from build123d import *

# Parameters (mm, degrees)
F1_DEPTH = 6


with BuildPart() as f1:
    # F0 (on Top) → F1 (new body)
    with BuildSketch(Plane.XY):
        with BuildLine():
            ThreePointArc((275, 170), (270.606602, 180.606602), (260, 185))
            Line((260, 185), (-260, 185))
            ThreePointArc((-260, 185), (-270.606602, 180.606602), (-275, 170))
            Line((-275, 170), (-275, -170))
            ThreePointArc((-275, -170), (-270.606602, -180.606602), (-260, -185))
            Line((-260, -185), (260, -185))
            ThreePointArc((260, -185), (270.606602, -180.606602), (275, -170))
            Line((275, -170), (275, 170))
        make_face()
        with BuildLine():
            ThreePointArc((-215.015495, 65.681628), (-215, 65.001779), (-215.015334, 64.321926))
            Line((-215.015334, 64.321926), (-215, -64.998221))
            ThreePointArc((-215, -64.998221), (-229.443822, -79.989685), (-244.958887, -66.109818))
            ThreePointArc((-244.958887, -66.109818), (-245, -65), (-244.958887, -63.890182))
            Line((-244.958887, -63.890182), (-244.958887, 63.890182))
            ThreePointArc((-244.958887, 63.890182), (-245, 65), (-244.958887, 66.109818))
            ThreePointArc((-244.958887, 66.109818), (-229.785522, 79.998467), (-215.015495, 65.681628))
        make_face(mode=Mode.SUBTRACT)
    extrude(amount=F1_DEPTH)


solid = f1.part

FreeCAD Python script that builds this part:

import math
import FreeCAD as App
import Part
import Sketcher
from FreeCAD import Vector
Q = App.Units.Quantity

doc = App.newDocument("Part")
body = doc.addObject("PartDesign::Body", "Body")

# Sketch on XY plane
sketch1 = body.newObject("Sketcher::SketchObject", "Sketch")
sketch1.AttachmentSupport = (doc.getObject("XY_Plane"), [""])
sketch1.MapMode = "FlatFace"
sketch1.addGeometry(Part.ArcOfCircle(Part.Circle(Vector(260.000001, 170.000001, 0), Vector(0, 0, 1), 14.999999), math.radians(-0.000004), math.radians(90.000004)), False)
sketch1.addGeometry(Part.LineSegment(Vector(260, 185, 0), Vector(-260, 185, 0)), False)
sketch1.addGeometry(Part.ArcOfCircle(Part.Circle(Vector(-260.000001, 170.000001, 0), Vector(0, 0, 1), 14.999999), math.radians(89.999996), math.radians(180.000004)), False)
sketch1.addGeometry(Part.LineSegment(Vector(-275, 170, 0), Vector(-275, -170, 0)), False)
sketch1.addGeometry(Part.ArcOfCircle(Part.Circle(Vector(-260.000001, -170.000001, 0), Vector(0, 0, 1), 14.999999), math.radians(179.999996), math.radians(270.000004)), False)
sketch1.addGeometry(Part.LineSegment(Vector(-260, -185, 0), Vector(260, -185, 0)), False)
sketch1.addGeometry(Part.ArcOfCircle(Part.Circle(Vector(260.000001, -170.000001, 0), Vector(0, 0, 1), 14.999999), math.radians(-90.000004), math.radians(0.000004)), False)
sketch1.addGeometry(Part.LineSegment(Vector(275, -170, 0), Vector(275, 170, 0)), False)
sketch1.addGeometry(Part.ArcOfCircle(Part.Circle(Vector(-230, 65, 0), Vector(0, 0, 1), 15), math.radians(2.604523), math.radians(175.756932)), False)
sketch1.addGeometry(Part.ArcOfCircle(Part.Circle(Vector(-230, 65.000003, 0), Vector(0, 0, 1), 15), math.radians(-2.590945), math.radians(2.604514)), False)
sketch1.addGeometry(Part.LineSegment(Vector(-215.015334, 64.321926, 0), Vector(-215, -64.998221, 0)), False)
sketch1.addGeometry(Part.ArcOfCircle(Part.Circle(Vector(-230, -65, 0), Vector(0, 0, 1), 15), math.radians(-175.756929), math.radians(0.006794)), False)
sketch1.addGeometry(Part.ArcOfCircle(Part.Circle(Vector(-230.000045, -65, 0), Vector(0, 0, 1), 14.999955), math.radians(175.756917), math.radians(184.243083)), False)
sketch1.addGeometry(Part.LineSegment(Vector(-244.958887, -63.890182, 0), Vector(-244.958887, 63.890182, 0)), False)
sketch1.addGeometry(Part.ArcOfCircle(Part.Circle(Vector(-230.000045, 65, 0), Vector(0, 0, 1), 14.999955), math.radians(175.756917), math.radians(184.243083)), False)
sketch1.addConstraint(Sketcher.Constraint("Coincident", 0, 2, 1, 1))
sketch1.addConstraint(Sketcher.Constraint("Coincident", 1, 2, 2, 1))
sketch1.addConstraint(Sketcher.Constraint("Coincident", 2, 2, 3, 1))
sketch1.addConstraint(Sketcher.Constraint("Coincident", 3, 2, 4, 1))
sketch1.addConstraint(Sketcher.Constraint("Coincident", 4, 2, 5, 1))
sketch1.addConstraint(Sketcher.Constraint("Coincident", 5, 2, 6, 1))
sketch1.addConstraint(Sketcher.Constraint("Coincident", 6, 2, 7, 1))
sketch1.addConstraint(Sketcher.Constraint("Coincident", 7, 2, 0, 1))
sketch1.addConstraint(Sketcher.Constraint("Coincident", 8, 1, 9, 2))
sketch1.addConstraint(Sketcher.Constraint("Coincident", 9, 1, 10, 1))
sketch1.addConstraint(Sketcher.Constraint("Coincident", 10, 2, 11, 2))
sketch1.addConstraint(Sketcher.Constraint("Coincident", 11, 1, 12, 2))
sketch1.addConstraint(Sketcher.Constraint("Coincident", 12, 1, 13, 1))
sketch1.addConstraint(Sketcher.Constraint("Coincident", 13, 2, 14, 2))
sketch1.addConstraint(Sketcher.Constraint("Coincident", 14, 1, 8, 2))
sketch1.addConstraint(Sketcher.Constraint("Horizontal", 1))
sketch1.addConstraint(Sketcher.Constraint("Vertical", 3))
sketch1.addConstraint(Sketcher.Constraint("Horizontal", 5))
sketch1.addConstraint(Sketcher.Constraint("Vertical", 7))
sketch1.addConstraint(Sketcher.Constraint("Vertical", 13))
sketch1.addConstraint(Sketcher.Constraint("Coincident", 9, 3, 8, 3))
sketch1.addConstraint(Sketcher.Constraint("Radius", 0, Q("14.999999 mm")))
sketch1.addConstraint(Sketcher.Constraint("Radius", 2, Q("14.999999 mm")))
sketch1.addConstraint(Sketcher.Constraint("Radius", 4, Q("14.999999 mm")))
sketch1.addConstraint(Sketcher.Constraint("Radius", 6, Q("14.999999 mm")))
sketch1.addConstraint(Sketcher.Constraint("Radius", 8, Q("15 mm")))
sketch1.addConstraint(Sketcher.Constraint("Radius", 11, Q("15 mm")))
sketch1.addConstraint(Sketcher.Constraint("DistanceX", 1, 2, 1, 1, Q("520 mm")))
sketch1.addConstraint(Sketcher.Constraint("DistanceX", 5, 1, 5, 2, Q("520 mm")))
sketch1.addConstraint(Sketcher.Constraint("DistanceY", 3, 2, 3, 1, Q("340 mm")))
sketch1.addConstraint(Sketcher.Constraint("DistanceY", 7, 1, 7, 2, Q("340 mm")))
sketch1.addConstraint(Sketcher.Constraint("DistanceX", -1, 1, 0, 3, Q("260.000001 mm")))
sketch1.addConstraint(Sketcher.Constraint("DistanceY", -1, 1, 0, 3, Q("170.000001 mm")))
sketch1.addConstraint(Sketcher.Constraint("DistanceX", 2, 3, -1, 1, Q("260.000001 mm")))
sketch1.addConstraint(Sketcher.Constraint("DistanceY", 4, 3, -1, 1, Q("170.000001 mm")))
sketch1.addConstraint(Sketcher.Constraint("DistanceX", 8, 3, -1, 1, Q("230 mm")))
sketch1.addConstraint(Sketcher.Constraint("DistanceY", -1, 1, 8, 3, Q("65 mm")))
sketch1.addConstraint(Sketcher.Constraint("DistanceX", 11, 3, -1, 1, Q("230 mm")))
sketch1.addConstraint(Sketcher.Constraint("DistanceY", 11, 3, -1, 1, Q("65 mm")))
sketch1.addConstraint(Sketcher.Constraint("DistanceY", 12, 3, -1, 1, Q("65 mm")))
sketch1.addConstraint(Sketcher.Constraint("DistanceY", -1, 1, 14, 3, Q("65 mm")))
sketch1.addConstraint(Sketcher.Constraint("DistanceX", -1, 1, 0, 2, Q("260 mm")))
sketch1.addConstraint(Sketcher.Constraint("DistanceY", -1, 1, 2, 2, Q("170 mm")))
sketch1.addConstraint(Sketcher.Constraint("DistanceX", 4, 2, -1, 1, Q("260 mm")))
sketch1.addConstraint(Sketcher.Constraint("DistanceY", 6, 2, -1, 1, Q("170 mm")))
sketch1.addConstraint(Sketcher.Constraint("Radius", 12, Q("14.999955 mm")))
sketch1.addConstraint(Sketcher.Constraint("Radius", 14, Q("14.999955 mm")))
sketch1.addConstraint(Sketcher.Constraint("DistanceY", 13, 1, 13, 2, Q("127.780364 mm")))
sketch1.addConstraint(Sketcher.Constraint("DistanceY", 10, 2, -1, 1, Q("64.998221 mm")))
sketch1.addConstraint(Sketcher.Constraint("DistanceY", 11, 1, -1, 1, Q("66.109818 mm")))
sketch1.addConstraint(Sketcher.Constraint("DistanceX", 14, 3, 8, 1, Q("14.98455 mm")))
sketch1.addConstraint(Sketcher.Constraint("DistanceX", 8, 1, 9, 1, Q("0.000161 mm")))
sketch1.addConstraint(Sketcher.Constraint("DistanceX", 14, 1, 14, 3, Q("14.958842 mm")))
pad1 = body.newObject("PartDesign::Pad", "Pad")
pad1.Profile = sketch1
pad1.Length = 6

doc.recompute()
